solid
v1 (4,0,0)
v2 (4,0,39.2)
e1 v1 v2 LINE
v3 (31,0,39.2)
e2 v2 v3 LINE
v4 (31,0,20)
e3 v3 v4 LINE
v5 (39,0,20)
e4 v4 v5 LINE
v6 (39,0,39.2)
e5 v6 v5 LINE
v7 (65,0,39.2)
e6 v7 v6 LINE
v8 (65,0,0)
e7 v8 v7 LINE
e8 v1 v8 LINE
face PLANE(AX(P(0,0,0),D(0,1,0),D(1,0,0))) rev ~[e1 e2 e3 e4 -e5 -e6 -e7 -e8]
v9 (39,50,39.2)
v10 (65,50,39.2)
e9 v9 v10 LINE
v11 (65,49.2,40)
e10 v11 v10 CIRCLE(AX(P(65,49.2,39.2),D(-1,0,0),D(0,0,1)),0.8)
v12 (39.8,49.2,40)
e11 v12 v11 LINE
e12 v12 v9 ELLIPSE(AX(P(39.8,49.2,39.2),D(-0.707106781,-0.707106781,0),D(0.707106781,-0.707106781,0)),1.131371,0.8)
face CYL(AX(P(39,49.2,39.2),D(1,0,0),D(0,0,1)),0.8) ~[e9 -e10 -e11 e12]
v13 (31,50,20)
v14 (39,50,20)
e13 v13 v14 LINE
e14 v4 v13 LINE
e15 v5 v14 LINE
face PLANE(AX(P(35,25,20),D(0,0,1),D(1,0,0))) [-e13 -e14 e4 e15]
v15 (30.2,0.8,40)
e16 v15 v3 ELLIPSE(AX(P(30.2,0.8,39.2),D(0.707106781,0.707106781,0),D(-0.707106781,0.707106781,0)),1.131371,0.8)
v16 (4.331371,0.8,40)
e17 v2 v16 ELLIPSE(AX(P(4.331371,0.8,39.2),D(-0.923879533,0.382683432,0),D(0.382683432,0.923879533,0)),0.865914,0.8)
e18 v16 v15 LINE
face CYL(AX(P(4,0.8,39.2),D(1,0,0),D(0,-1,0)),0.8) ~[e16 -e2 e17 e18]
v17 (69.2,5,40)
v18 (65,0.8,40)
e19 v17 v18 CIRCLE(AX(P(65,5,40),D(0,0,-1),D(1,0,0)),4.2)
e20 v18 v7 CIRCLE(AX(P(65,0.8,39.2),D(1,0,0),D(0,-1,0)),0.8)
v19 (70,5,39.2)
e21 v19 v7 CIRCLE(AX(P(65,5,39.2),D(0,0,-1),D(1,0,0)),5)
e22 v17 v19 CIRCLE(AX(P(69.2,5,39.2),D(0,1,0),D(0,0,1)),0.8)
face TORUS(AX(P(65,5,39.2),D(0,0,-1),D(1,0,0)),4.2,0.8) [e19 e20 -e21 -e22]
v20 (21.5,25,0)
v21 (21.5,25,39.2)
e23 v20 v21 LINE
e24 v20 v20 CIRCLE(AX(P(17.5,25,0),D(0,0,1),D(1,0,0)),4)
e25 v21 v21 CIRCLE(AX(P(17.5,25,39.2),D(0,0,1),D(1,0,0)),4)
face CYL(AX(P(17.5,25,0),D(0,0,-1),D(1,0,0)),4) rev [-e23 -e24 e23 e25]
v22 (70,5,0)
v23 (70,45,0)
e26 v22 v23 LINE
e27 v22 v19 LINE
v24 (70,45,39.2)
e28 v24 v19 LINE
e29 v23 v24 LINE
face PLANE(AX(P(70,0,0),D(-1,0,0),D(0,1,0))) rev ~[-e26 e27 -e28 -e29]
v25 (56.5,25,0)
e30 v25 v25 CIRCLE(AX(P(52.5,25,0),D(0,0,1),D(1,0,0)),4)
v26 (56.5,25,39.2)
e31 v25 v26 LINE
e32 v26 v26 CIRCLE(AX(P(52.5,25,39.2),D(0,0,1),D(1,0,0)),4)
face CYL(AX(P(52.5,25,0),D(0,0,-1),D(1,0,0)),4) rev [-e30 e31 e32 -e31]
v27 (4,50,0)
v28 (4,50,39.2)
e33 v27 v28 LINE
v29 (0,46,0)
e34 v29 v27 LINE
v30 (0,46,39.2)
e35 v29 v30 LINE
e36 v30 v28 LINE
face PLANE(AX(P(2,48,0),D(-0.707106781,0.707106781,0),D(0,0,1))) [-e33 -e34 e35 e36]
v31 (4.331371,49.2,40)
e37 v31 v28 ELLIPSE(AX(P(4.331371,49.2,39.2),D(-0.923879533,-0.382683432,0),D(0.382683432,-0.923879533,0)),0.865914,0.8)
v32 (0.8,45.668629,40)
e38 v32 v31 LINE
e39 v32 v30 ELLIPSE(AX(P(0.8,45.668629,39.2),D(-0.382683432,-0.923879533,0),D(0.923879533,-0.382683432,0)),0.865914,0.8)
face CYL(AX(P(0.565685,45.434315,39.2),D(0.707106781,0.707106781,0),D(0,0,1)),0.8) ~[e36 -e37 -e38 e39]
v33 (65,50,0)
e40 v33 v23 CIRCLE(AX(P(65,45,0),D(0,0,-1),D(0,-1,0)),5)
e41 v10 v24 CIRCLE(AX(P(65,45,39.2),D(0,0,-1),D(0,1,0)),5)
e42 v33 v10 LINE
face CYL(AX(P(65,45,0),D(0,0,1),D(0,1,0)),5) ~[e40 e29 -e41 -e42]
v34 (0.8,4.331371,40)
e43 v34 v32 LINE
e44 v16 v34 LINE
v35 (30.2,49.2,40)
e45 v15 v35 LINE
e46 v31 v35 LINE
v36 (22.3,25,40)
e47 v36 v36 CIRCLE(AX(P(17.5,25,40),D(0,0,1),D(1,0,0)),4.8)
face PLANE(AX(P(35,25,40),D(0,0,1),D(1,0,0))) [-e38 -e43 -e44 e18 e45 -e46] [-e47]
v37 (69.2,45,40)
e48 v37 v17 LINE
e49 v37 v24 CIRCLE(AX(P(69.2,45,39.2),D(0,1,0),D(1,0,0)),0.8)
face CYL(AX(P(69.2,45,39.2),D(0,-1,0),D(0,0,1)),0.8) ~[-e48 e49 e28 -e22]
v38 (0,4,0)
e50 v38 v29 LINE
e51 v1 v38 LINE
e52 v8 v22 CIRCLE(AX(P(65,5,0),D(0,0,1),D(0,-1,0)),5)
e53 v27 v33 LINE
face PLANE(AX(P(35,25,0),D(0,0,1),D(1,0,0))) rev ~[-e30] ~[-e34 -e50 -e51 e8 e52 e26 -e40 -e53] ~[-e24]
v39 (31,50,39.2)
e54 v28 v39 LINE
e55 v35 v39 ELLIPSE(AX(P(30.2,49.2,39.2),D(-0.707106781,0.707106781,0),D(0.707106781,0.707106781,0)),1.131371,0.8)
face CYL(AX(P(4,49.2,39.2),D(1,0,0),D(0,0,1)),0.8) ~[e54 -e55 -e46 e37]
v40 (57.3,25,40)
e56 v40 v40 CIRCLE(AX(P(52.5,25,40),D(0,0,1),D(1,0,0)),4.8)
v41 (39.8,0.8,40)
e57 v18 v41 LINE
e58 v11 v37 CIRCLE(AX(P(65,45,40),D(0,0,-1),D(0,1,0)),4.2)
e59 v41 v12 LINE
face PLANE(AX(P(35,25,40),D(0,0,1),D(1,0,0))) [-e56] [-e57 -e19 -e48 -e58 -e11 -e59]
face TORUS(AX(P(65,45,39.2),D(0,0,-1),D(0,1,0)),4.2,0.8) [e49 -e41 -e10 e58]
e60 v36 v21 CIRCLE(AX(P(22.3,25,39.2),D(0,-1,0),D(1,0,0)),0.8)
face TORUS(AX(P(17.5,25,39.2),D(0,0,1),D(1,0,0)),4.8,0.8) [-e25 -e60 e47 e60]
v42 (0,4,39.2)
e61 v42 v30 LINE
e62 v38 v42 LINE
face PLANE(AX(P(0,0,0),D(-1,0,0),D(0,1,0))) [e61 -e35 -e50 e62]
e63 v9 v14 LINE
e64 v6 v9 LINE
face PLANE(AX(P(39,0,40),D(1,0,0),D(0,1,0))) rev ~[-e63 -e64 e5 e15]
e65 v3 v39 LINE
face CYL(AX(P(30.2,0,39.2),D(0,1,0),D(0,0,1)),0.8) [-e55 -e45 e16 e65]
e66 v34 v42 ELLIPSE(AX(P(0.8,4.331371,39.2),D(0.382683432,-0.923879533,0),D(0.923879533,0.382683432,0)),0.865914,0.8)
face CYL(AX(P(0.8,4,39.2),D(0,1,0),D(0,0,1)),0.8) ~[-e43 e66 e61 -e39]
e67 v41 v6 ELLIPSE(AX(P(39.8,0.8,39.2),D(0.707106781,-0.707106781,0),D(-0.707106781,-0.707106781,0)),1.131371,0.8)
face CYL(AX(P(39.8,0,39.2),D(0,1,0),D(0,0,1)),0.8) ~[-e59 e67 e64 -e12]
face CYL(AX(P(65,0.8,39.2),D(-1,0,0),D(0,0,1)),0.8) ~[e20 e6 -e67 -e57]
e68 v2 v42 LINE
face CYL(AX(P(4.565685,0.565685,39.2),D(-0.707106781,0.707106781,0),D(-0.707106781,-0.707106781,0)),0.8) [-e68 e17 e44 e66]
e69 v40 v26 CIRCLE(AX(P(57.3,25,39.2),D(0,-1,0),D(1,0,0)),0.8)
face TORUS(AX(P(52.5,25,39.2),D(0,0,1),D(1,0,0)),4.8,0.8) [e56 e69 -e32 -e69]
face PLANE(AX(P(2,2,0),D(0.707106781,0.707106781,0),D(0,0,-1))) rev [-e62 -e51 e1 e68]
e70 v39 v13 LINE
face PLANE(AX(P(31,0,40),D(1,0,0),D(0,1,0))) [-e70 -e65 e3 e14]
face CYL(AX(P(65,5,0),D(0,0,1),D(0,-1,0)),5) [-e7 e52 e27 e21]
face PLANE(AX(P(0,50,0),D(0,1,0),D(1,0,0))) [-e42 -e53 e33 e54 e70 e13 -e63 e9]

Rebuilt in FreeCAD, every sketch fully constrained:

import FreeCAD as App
import Part
import Sketcher
from FreeCAD import Vector
Q = App.Units.Quantity


def edges_at(feature, points):
    """Names of the edges that pass closest to the given points."""
    edges = feature.Shape.Edges
    near = lambda p: min(range(len(edges)), key=lambda i: edges[i].distToShape(Part.Vertex(*p))[0])
    return sorted({f"Edge{near(p) + 1}" for p in points})


def add_polygon(sketch, points):
    """Adds a closed chain of lines whose ends are joined by coincident constraints."""
    first, n = sketch.GeometryCount, len(points)
    for a, b in zip(points, points[1:] + points[:1]):
        sketch.addGeometry(Part.LineSegment(App.Vector(*a, 0), App.Vector(*b, 0)), False)
    for i in range(n):
        sketch.addConstraint(Sketcher.Constraint("Coincident", first + i, 2, first + (i + 1) % n, 1))

doc = App.newDocument("Part")
body = doc.addObject("PartDesign::Body", "Body")

# Sketch on XY plane
sketch1 = body.newObject("Sketcher::SketchObject", "Sketch")
sketch1.AttachmentSupport = (doc.getObject("XY_Plane"), [""])
sketch1.MapMode = "FlatFace"
add_polygon(sketch1, [(0, 50), (0, 0), (70, 0), (70, 50)])  # lines 0-3
sketch1.addGeometry(Part.Circle(Vector(17.5, 25, 0), Vector(0, 0, 1), 4), False)  # 4
sketch1.addGeometry(Part.Circle(Vector(52.5, 25, 0), Vector(0, 0, 1), 4), False)  # 5
sketch1.addConstraint([
    Sketcher.Constraint("Vertical", 0),
    Sketcher.Constraint("Horizontal", 1),
    Sketcher.Constraint("Vertical", 2),
    Sketcher.Constraint("Horizontal", 3),
    Sketcher.Constraint("Coincident", 0, 2, -1, 1),
    Sketcher.Constraint("Equal", 4, 5),
    Sketcher.Constraint("Horizontal", 4, 3, 5, 3),
    Sketcher.Constraint("Diameter", 4, Q("8 mm")),
    Sketcher.Constraint("DistanceX", 1, 1, 1, 2, Q("70 mm")),
    Sketcher.Constraint("DistanceY", 0, 2, 0, 1, Q("50 mm")),
    Sketcher.Constraint("DistanceY", -1, 1, 4, 3, Q("25 mm")),
    Sketcher.Constraint("DistanceX", 4, 3, 5, 3, Q("35 mm")),
    Sketcher.Constraint("DistanceX", -1, 1, 4, 3, Q("17.5 mm")),
])
pad1 = body.newObject("PartDesign::Pad", "Pad")
pad1.Profile = sketch1
pad1.Length = 40

# Sketch on XY plane
sketch2 = body.newObject("Sketcher::SketchObject", "Sketch001")
sketch2.AttachmentSupport = (doc.getObject("XY_Plane"), [""])
sketch2.MapMode = "FlatFace"
sketch2.AttachmentOffset = App.Placement(Vector(0, 0, 40), App.Rotation())
add_polygon(sketch2, [(31, 50), (31, 0), (39, 0), (39, 50)])  # lines 0-3
sketch2.addConstraint([
    Sketcher.Constraint("Vertical", 0),
    Sketcher.Constraint("Horizontal", 1),
    Sketcher.Constraint("Vertical", 2),
    Sketcher.Constraint("Horizontal", 3),
    Sketcher.Constraint("PointOnObject", 0, 2, -1),
    Sketcher.Constraint("DistanceX", 1, 1, 1, 2, Q("8 mm")),
    Sketcher.Constraint("DistanceY", 0, 2, 0, 1, Q("50 mm")),
    Sketcher.Constraint("DistanceX", -1, 1, 0, 2, Q("31 mm")),
])
pocket1 = body.newObject("PartDesign::Pocket", "Pocket")
pocket1.Profile = sketch2
pocket1.Length = 20
doc.recompute()

fillet = body.newObject("PartDesign::Fillet", "Fillet")
fillet.Base = (pocket1, edges_at(pocket1, [(70, 0, 20), (70, 50, 20)]))
fillet.Radius = 5
doc.recompute()

chamfer = body.newObject("PartDesign::Chamfer", "Chamfer")
chamfer.Base = (fillet, edges_at(fillet, [(0, 50, 20), (0, 0, 20)]))
chamfer.Size = 4
doc.recompute()

fillet2 = body.newObject("PartDesign::Fillet", "Fillet001")
fillet2.Base = (chamfer, edges_at(chamfer, [
    (52, 50, 40),
    (68.536, 48.536, 40),
    (39, 25, 40),
    (70, 25, 40),
    (52, 0, 40),
    (68.536, 1.464, 40),
    (48.5, 25, 40),
]))
fillet2.Radius = 0.8
doc.recompute()

fillet3 = body.newObject("PartDesign::Fillet", "Fillet002")
fillet3.Base = (fillet2, edges_at(fillet2, [
    (17.5, 50, 40),
    (2, 48, 40),
    (31, 25, 40),
    (0, 25, 40),
    (17.5, 0, 40),
    (2, 2, 40),
    (13.5, 25, 40),
]))
fillet3.Radius = 0.8

doc.recompute()
